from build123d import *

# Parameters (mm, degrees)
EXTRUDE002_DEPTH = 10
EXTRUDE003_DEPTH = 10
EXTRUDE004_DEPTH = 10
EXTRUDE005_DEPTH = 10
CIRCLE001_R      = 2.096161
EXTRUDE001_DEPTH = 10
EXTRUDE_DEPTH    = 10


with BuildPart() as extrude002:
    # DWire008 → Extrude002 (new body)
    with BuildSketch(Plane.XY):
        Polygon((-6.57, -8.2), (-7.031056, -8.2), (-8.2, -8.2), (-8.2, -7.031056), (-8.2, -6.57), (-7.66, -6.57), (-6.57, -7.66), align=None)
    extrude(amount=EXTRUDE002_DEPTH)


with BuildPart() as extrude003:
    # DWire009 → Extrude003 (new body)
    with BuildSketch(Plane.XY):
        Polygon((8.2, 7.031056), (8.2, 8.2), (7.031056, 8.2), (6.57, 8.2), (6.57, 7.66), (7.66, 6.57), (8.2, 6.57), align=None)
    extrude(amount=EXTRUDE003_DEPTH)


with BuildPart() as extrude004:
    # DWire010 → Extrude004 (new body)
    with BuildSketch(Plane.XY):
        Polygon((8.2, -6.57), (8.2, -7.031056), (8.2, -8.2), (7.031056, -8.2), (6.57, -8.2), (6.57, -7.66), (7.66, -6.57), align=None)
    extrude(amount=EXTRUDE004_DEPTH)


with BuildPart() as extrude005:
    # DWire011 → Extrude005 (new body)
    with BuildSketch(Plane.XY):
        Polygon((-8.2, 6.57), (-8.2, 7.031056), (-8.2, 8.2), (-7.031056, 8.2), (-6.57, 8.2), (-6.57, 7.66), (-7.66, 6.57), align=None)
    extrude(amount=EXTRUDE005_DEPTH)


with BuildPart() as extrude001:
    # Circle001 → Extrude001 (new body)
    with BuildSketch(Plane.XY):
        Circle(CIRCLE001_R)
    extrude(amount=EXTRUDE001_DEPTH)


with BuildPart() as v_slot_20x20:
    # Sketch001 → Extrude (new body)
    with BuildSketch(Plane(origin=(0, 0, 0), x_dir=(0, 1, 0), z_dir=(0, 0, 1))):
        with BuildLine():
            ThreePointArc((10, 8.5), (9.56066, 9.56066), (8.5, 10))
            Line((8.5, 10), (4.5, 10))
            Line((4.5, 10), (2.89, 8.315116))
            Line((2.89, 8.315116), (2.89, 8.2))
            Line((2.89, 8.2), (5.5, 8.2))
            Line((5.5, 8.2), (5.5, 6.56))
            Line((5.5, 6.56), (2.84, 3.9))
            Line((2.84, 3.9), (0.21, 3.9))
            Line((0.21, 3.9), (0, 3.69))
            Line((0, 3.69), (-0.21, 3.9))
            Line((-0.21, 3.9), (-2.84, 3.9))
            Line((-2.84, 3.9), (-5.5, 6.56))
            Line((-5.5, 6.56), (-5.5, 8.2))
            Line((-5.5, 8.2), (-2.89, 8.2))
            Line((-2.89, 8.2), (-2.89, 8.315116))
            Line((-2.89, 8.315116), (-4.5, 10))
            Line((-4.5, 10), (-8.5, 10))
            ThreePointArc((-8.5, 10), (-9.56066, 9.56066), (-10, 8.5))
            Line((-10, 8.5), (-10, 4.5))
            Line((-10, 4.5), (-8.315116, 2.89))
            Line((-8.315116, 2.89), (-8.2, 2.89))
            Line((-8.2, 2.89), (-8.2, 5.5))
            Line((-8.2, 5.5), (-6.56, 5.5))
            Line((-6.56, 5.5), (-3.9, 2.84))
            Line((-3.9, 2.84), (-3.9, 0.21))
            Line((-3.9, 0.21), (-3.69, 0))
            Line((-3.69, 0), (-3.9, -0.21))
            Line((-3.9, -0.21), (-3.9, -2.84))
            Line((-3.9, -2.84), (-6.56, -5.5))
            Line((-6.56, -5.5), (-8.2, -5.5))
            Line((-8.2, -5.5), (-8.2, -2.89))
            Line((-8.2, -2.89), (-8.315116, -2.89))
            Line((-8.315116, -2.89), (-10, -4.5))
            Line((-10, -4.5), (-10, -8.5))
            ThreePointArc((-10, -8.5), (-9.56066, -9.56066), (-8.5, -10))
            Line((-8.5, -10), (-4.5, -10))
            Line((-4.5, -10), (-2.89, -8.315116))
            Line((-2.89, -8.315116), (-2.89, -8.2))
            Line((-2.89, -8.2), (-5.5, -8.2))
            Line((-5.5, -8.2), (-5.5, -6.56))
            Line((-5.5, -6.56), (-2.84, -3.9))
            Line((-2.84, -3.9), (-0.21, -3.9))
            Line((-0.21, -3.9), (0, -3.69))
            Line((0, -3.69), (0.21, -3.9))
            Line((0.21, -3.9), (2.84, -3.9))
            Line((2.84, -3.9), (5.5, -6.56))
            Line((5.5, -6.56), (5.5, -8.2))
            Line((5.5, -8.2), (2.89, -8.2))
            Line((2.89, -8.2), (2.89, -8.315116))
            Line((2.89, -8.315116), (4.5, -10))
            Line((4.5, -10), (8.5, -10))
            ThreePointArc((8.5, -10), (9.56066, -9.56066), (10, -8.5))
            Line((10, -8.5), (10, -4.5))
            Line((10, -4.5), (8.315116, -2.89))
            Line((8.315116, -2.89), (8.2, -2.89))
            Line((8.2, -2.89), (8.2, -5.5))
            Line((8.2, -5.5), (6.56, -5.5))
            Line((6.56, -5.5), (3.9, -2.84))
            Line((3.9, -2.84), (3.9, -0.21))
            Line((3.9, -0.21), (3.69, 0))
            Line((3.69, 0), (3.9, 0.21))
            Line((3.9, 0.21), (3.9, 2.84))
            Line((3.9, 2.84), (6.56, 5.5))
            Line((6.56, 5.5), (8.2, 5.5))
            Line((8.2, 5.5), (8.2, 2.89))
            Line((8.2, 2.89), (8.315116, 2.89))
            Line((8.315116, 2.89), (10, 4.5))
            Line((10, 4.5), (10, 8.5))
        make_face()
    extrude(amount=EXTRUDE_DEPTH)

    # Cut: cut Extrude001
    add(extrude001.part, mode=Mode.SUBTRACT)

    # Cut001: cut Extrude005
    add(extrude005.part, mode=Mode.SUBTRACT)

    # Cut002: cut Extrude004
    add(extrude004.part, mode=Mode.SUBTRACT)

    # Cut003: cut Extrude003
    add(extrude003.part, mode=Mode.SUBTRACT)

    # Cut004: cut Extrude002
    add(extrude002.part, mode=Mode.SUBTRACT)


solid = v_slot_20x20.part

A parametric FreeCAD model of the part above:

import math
import FreeCAD as App
import Part
import Sketcher

V = App.Vector
Q = App.Units.Quantity

doc = App.newDocument("Part")
params = doc.addObject("Spreadsheet::Sheet", "Params")
for row, (alias, value) in enumerate([
    ("sketch1_width", "1.63 mm"),
    ("sketch1_width2", "0.54 mm"),
    ("pad1_length", "10 mm"),
    ("sketch2_width", "1.63 mm"),
    ("sketch2_width2", "0.54 mm"),
    ("pad2_length", "10 mm"),
    ("sketch3_width", "0.54 mm"),
    ("sketch3_width2", "1.63 mm"),
    ("pad3_length", "10 mm"),
    ("sketch4_width", "0.54 mm"),
    ("sketch4_width2", "1.63 mm"),
    ("pad4_length", "10 mm"),
    ("pad5_length", "10 mm"),
    ("sketch6_radius", "1.500001 mm"),
    ("sketch6_width", "4 mm"),
    ("sketch6_width2", "1.64 mm"),
    ("sketch6_width3", "2.61 mm"),
    ("sketch6_width4", "2.63 mm"),
    ("pad6_length", "10 mm"),
], start=1):
    params.set(f"A{row}", alias)
    params.set(f"B{row}", "=" + value)
    params.setAlias(f"B{row}", alias)

body = doc.addObject("PartDesign::Body", "Body")

sketch1 = body.newObject("Sketcher::SketchObject", "Sketch")
sketch1.AttachmentSupport = (doc.getObject("XY_Plane"), [""])
sketch1.MapMode = "FlatFace"
sketch1.addGeometry(Part.LineSegment(V(-8.2, -8.2, 0), V(-6.6, -8.2, 0)), False)
sketch1.addGeometry(Part.LineSegment(V(-6.6, -8.2, 0), V(-6.6, -7.7, 0)), False)
sketch1.addGeometry(Part.LineSegment(V(-6.6, -7.7, 0), V(-7.7, -6.6, 0)), False)
sketch1.addGeometry(Part.LineSegment(V(-7.7, -6.6, 0), V(-8.2, -6.6, 0)), False)
sketch1.addGeometry(Part.LineSegment(V(-8.2, -6.6, 0), V(-8.2, -8.2, 0)), False)
sketch1.addConstraint(Sketcher.Constraint("Coincident", 0, 2, 1, 1))
sketch1.addConstraint(Sketcher.Constraint("Coincident", 1, 2, 2, 1))
sketch1.addConstraint(Sketcher.Constraint("Coincident", 2, 2, 3, 1))
sketch1.addConstraint(Sketcher.Constraint("Coincident", 3, 2, 4, 1))
sketch1.addConstraint(Sketcher.Constraint("Coincident", 4, 2, 0, 1))
sketch1.addConstraint(Sketcher.Constraint("Horizontal", 0))
sketch1.addConstraint(Sketcher.Constraint("Vertical", 1))
sketch1.addConstraint(Sketcher.Constraint("Horizontal", 3))
sketch1.addConstraint(Sketcher.Constraint("Vertical", 4))
sketch1.addConstraint(Sketcher.Constraint("Equal", 3, 1))
sketch1.addConstraint(Sketcher.Constraint("Equal", 0, 4))
sketch1.addConstraint(Sketcher.Constraint("DistanceX", 0, 1, 0, 2, Q("1.63 mm")))
sketch1.addConstraint(Sketcher.Constraint("DistanceX", 3, 2, 3, 1, Q("0.54 mm")))
sketch1.addConstraint(Sketcher.Constraint("DistanceY", 0, 2, -1, 1, Q("8.2 mm")))
sketch1.addConstraint(Sketcher.Constraint("DistanceX", 3, 2, -1, 1, Q("8.2 mm")))
sketch1.setExpression("Constraints[11]", "Params.sketch1_width")
sketch1.setExpression("Constraints[12]", "Params.sketch1_width2")
pad1 = body.newObject("PartDesign::Pad", "Pad")
pad1.Profile = sketch1
pad1.setExpression("Length", "Params.pad1_length")
body2 = doc.addObject("PartDesign::Body", "Body001")

sketch2 = body2.newObject("Sketcher::SketchObject", "Sketch001")
sketch2.AttachmentSupport = (doc.getObject("XY_Plane001"), [""])
sketch2.MapMode = "FlatFace"
sketch2.addGeometry(Part.LineSegment(V(8.2, 8.2, 0), V(6.6, 8.2, 0)), False)
sketch2.addGeometry(Part.LineSegment(V(6.6, 8.2, 0), V(6.6, 7.7, 0)), False)
sketch2.addGeometry(Part.LineSegment(V(6.6, 7.7, 0), V(7.7, 6.6, 0)), False)
sketch2.addGeometry(Part.LineSegment(V(7.7, 6.6, 0), V(8.2, 6.6, 0)), False)
sketch2.addGeometry(Part.LineSegment(V(8.2, 6.6, 0), V(8.2, 8.2, 0)), False)
sketch2.addConstraint(Sketcher.Constraint("Coincident", 0, 2, 1, 1))
sketch2.addConstraint(Sketcher.Constraint("Coincident", 1, 2, 2, 1))
sketch2.addConstraint(Sketcher.Constraint("Coincident", 2, 2, 3, 1))
sketch2.addConstraint(Sketcher.Constraint("Coincident", 3, 2, 4, 1))
sketch2.addConstraint(Sketcher.Constraint("Coincident", 4, 2, 0, 1))
sketch2.addConstraint(Sketcher.Constraint("Horizontal", 0))
sketch2.addConstraint(Sketcher.Constraint("Vertical", 1))
sketch2.addConstraint(Sketcher.Constraint("Horizontal", 3))
sketch2.addConstraint(Sketcher.Constraint("Vertical", 4))
sketch2.addConstraint(Sketcher.Constraint("Equal", 3, 1))
sketch2.addConstraint(Sketcher.Constraint("Equal", 0, 4))
sketch2.addConstraint(Sketcher.Constraint("DistanceX", 0, 2, 0, 1, Q("1.63 mm")))
sketch2.addConstraint(Sketcher.Constraint("DistanceX", 3, 1, 3, 2, Q("0.54 mm")))
sketch2.addConstraint(Sketcher.Constraint("DistanceY", -1, 1, 0, 2, Q("8.2 mm")))
sketch2.addConstraint(Sketcher.Constraint("DistanceX", -1, 1, 3, 2, Q("8.2 mm")))
sketch2.setExpression("Constraints[11]", "Params.sketch2_width")
sketch2.setExpression("Constraints[12]", "Params.sketch2_width2")
pad2 = body2.newObject("PartDesign::Pad", "Pad001")
pad2.Profile = sketch2
pad2.setExpression("Length", "Params.pad2_length")
body3 = doc.addObject("PartDesign::Body", "Body002")

sketch3 = body3.newObject("Sketcher::SketchObject", "Sketch002")
sketch3.AttachmentSupport = (doc.getObject("XY_Plane002"), [""])
sketch3.MapMode = "FlatFace"
sketch3.addGeometry(Part.LineSegment(V(8.2, -8.2, 0), V(8.2, -6.6, 0)), False)
sketch3.addGeometry(Part.LineSegment(V(8.2, -6.6, 0), V(7.7, -6.6, 0)), False)
sketch3.addGeometry(Part.LineSegment(V(7.7, -6.6, 0), V(6.6, -7.7, 0)), False)
sketch3.addGeometry(Part.LineSegment(V(6.6, -7.7, 0), V(6.6, -8.2, 0)), False)
sketch3.addGeometry(Part.LineSegment(V(6.6, -8.2, 0), V(8.2, -8.2, 0)), False)
sketch3.addConstraint(Sketcher.Constraint("Coincident", 0, 2, 1, 1))
sketch3.addConstraint(Sketcher.Constraint("Coincident", 1, 2, 2, 1))
sketch3.addConstraint(Sketcher.Constraint("Coincident", 2, 2, 3, 1))
sketch3.addConstraint(Sketcher.Constraint("Coincident", 3, 2, 4, 1))
sketch3.addConstraint(Sketcher.Constraint("Coincident", 4, 2, 0, 1))
sketch3.addConstraint(Sketcher.Constraint("Vertical", 0))
sketch3.addConstraint(Sketcher.Constraint("Horizontal", 1))
sketch3.addConstraint(Sketcher.Constraint("Vertical", 3))
sketch3.addConstraint(Sketcher.Constraint("Horizontal", 4))
sketch3.addConstraint(Sketcher.Constraint("Equal", 4, 0))
sketch3.addConstraint(Sketcher.Constraint("Equal", 1, 3))
sketch3.addConstraint(Sketcher.Constraint("DistanceX", 1, 2, 1, 1, Q("0.54 mm")))
sketch3.addConstraint(Sketcher.Constraint("DistanceX", 4, 1, 4, 2, Q("1.63 mm")))
sketch3.addConstraint(Sketcher.Constraint("DistanceX", -1, 1, 0, 2, Q("8.2 mm")))
sketch3.addConstraint(Sketcher.Constraint("DistanceY", 3, 2, -1, 1, Q("8.2 mm")))
sketch3.setExpression("Constraints[11]", "Params.sketch3_width")
sketch3.setExpression("Constraints[12]", "Params.sketch3_width2")
pad3 = body3.newObject("PartDesign::Pad", "Pad002")
pad3.Profile = sketch3
pad3.setExpression("Length", "Params.pad3_length")
body4 = doc.addObject("PartDesign::Body", "Body003")

sketch4 = body4.newObject("Sketcher::SketchObject", "Sketch003")
sketch4.AttachmentSupport = (doc.getObject("XY_Plane003"), [""])
sketch4.MapMode = "FlatFace"
sketch4.addGeometry(Part.LineSegment(V(-8.2, 8.2, 0), V(-8.2, 6.6, 0)), False)
sketch4.addGeometry(Part.LineSegment(V(-8.2, 6.6, 0), V(-7.7, 6.6, 0)), False)
sketch4.addGeometry(Part.LineSegment(V(-7.7, 6.6, 0), V(-6.6, 7.7, 0)), False)
sketch4.addGeometry(Part.LineSegment(V(-6.6, 7.7, 0), V(-6.6, 8.2, 0)), False)
sketch4.addGeometry(Part.LineSegment(V(-6.6, 8.2, 0), V(-8.2, 8.2, 0)), False)
sketch4.addConstraint(Sketcher.Constraint("Coincident", 0, 2, 1, 1))
sketch4.addConstraint(Sketcher.Constraint("Coincident", 1, 2, 2, 1))
sketch4.addConstraint(Sketcher.Constraint("Coincident", 2, 2, 3, 1))
sketch4.addConstraint(Sketcher.Constraint("Coincident", 3, 2, 4, 1))
sketch4.addConstraint(Sketcher.Constraint("Coincident", 4, 2, 0, 1))
sketch4.addConstraint(Sketcher.Constraint("Vertical", 0))
sketch4.addConstraint(Sketcher.Constraint("Horizontal", 1))
sketch4.addConstraint(Sketcher.Constraint("Vertical", 3))
sketch4.addConstraint(Sketcher.Constraint("Horizontal", 4))
sketch4.addConstraint(Sketcher.Constraint("Equal", 4, 0))
sketch4.addConstraint(Sketcher.Constraint("Equal", 1, 3))
sketch4.addConstraint(Sketcher.Constraint("DistanceX", 1, 1, 1, 2, Q("0.54 mm")))
sketch4.addConstraint(Sketcher.Constraint("DistanceX", 4, 2, 4, 1, Q("1.63 mm")))
sketch4.addConstraint(Sketcher.Constraint("DistanceX", 0, 2, -1, 1, Q("8.2 mm")))
sketch4.addConstraint(Sketcher.Constraint("DistanceY", -1, 1, 3, 2, Q("8.2 mm")))
sketch4.setExpression("Constraints[11]", "Params.sketch4_width")
sketch4.setExpression("Constraints[12]", "Params.sketch4_width2")
pad4 = body4.newObject("PartDesign::Pad", "Pad003")
pad4.Profile = sketch4
pad4.setExpression("Length", "Params.pad4_length")
body5 = doc.addObject("PartDesign::Body", "Body004")

sketch5 = body5.newObject("Sketcher::SketchObject", "Sketch004")
sketch5.AttachmentSupport = (doc.getObject("XY_Plane004"), [""])
sketch5.MapMode = "FlatFace"
sketch5.addGeometry(Part.Circle(V(0, 0, 0), V(0, 0, 1), 2.1), False)
sketch5.addConstraint(Sketcher.Constraint("Coincident", 0, 3, -1, 1))
sketch5.addConstraint(Sketcher.Constraint("Diameter", 0, Q("4.192322 mm")))
pad5 = body5.newObject("PartDesign::Pad", "Pad004")
pad5.Profile = sketch5
pad5.setExpression("Length", "Params.pad5_length")
body6 = doc.addObject("PartDesign::Body", "Body005")

sketch6 = body6.newObject("Sketcher::SketchObject", "Sketch005")
sketch6.AttachmentSupport = (doc.getObject("XY_Plane005"), [""])
sketch6.MapMode = "FlatFace"
sketch6.addGeometry(Part.ArcOfCircle(Part.Circle(V(-8.5, 8.5, 0), V(0, 0, 1), 1.5), math.radians(90), math.radians(180)), False)
sketch6.addGeometry(Part.LineSegment(V(-10, 8.5, 0), V(-10, 4.5, 0)), False)
sketch6.addGeometry(Part.LineSegment(V(-10, 4.5, 0), V(-8.32, 2.89, 0)), False)
sketch6.addGeometry(Part.LineSegment(V(-8.32, 2.89, 0), V(-8.2, 2.89, 0)), False)
sketch6.addGeometry(Part.LineSegment(V(-8.2, 2.89, 0), V(-8.2, 5.5, 0)), False)
sketch6.addGeometry(Part.LineSegment(V(-8.2, 5.5, 0), V(-6.56, 5.5, 0)), False)
sketch6.addGeometry(Part.LineSegment(V(-6.56, 5.5, 0), V(-3.9, 2.84, 0)), False)
sketch6.addGeometry(Part.LineSegment(V(-3.9, 2.84, 0), V(-3.9, 0.21, 0)), False)
sketch6.addGeometry(Part.LineSegment(V(-3.9, 0.21, 0), V(-3.69, 0, 0)), False)
sketch6.addGeometry(Part.LineSegment(V(-3.69, 0, 0), V(-3.9, -0.21, 0)), False)
sketch6.addGeometry(Part.LineSegment(V(-3.9, -0.21, 0), V(-3.9, -2.84, 0)), False)
sketch6.addGeometry(Part.LineSegment(V(-3.9, -2.84, 0), V(-6.56, -5.5, 0)), False)
sketch6.addGeometry(Part.LineSegment(V(-6.56, -5.5, 0), V(-8.2, -5.5, 0)), False)
sketch6.addGeometry(Part.LineSegment(V(-8.2, -5.5, 0), V(-8.2, -2.89, 0)), False)
sketch6.addGeometry(Part.LineSegment(V(-8.2, -2.89, 0), V(-8.32, -2.89, 0)), False)
sketch6.addGeometry(Part.LineSegment(V(-8.32, -2.89, 0), V(-10, -4.5, 0)), False)
sketch6.addGeometry(Part.LineSegment(V(-10, -4.5, 0), V(-10, -8.5, 0)), False)
sketch6.addGeometry(Part.ArcOfCircle(Part.Circle(V(-8.5, -8.5, 0), V(0, 0, 1), 1.5), math.radians(-180), math.radians(-90)), False)
sketch6.addGeometry(Part.LineSegment(V(-8.5, -10, 0), V(-4.5, -10, 0)), False)
sketch6.addGeometry(Part.LineSegment(V(-4.5, -10, 0), V(-2.89, -8.32, 0)), False)
sketch6.addGeometry(Part.LineSegment(V(-2.89, -8.32, 0), V(-2.89, -8.2, 0)), False)
sketch6.addGeometry(Part.LineSegment(V(-2.89, -8.2, 0), V(-5.5, -8.2, 0)), False)
sketch6.addGeometry(Part.LineSegment(V(-5.5, -8.2, 0), V(-5.5, -6.56, 0)), False)
sketch6.addGeometry(Part.LineSegment(V(-5.5, -6.56, 0), V(-2.84, -3.9, 0)), False)
sketch6.addGeometry(Part.LineSegment(V(-2.84, -3.9, 0), V(-0.21, -3.9, 0)), False)
sketch6.addGeometry(Part.LineSegment(V(-0.21, -3.9, 0), V(0, -3.69, 0)), False)
sketch6.addGeometry(Part.LineSegment(V(0, -3.69, 0), V(0.21, -3.9, 0)), False)
sketch6.addGeometry(Part.LineSegment(V(0.21, -3.9, 0), V(2.84, -3.9, 0)), False)
sketch6.addGeometry(Part.LineSegment(V(2.84, -3.9, 0), V(5.5, -6.56, 0)), False)
sketch6.addGeometry(Part.LineSegment(V(5.5, -6.56, 0), V(5.5, -8.2, 0)), False)
sketch6.addGeometry(Part.LineSegment(V(5.5, -8.2, 0), V(2.89, -8.2, 0)), False)
sketch6.addGeometry(Part.LineSegment(V(2.89, -8.2, 0), V(2.89, -8.32, 0)), False)
sketch6.addGeometry(Part.LineSegment(V(2.89, -8.32, 0), V(4.5, -10, 0)), False)
sketch6.addGeometry(Part.LineSegment(V(4.5, -10, 0), V(8.5, -10, 0)), False)
sketch6.addGeometry(Part.ArcOfCircle(Part.Circle(V(8.5, -8.5, 0), V(0, 0, 1), 1.5), math.radians(-90), math.radians(0)), False)
sketch6.addGeometry(Part.LineSegment(V(10, -8.5, 0), V(10, -4.5, 0)), False)
sketch6.addGeometry(Part.LineSegment(V(10, -4.5, 0), V(8.32, -2.89, 0)), False)
sketch6.addGeometry(Part.LineSegment(V(8.32, -2.89, 0), V(8.2, -2.89, 0)), False)
sketch6.addGeometry(Part.LineSegment(V(8.2, -2.89, 0), V(8.2, -5.5, 0)), False)
sketch6.addGeometry(Part.LineSegment(V(8.2, -5.5, 0), V(6.56, -5.5, 0)), False)
sketch6.addGeometry(Part.LineSegment(V(6.56, -5.5, 0), V(3.9, -2.84, 0)), False)
sketch6.addGeometry(Part.LineSegment(V(3.9, -2.84, 0), V(3.9, -0.21, 0)), False)
sketch6.addGeometry(Part.LineSegment(V(3.9, -0.21, 0), V(3.69, 0, 0)), False)
sketch6.addGeometry(Part.LineSegment(V(3.69, 0, 0), V(3.9, 0.21, 0)), False)
sketch6.addGeometry(Part.LineSegment(V(3.9, 0.21, 0), V(3.9, 2.84, 0)), False)
sketch6.addGeometry(Part.LineSegment(V(3.9, 2.84, 0), V(6.56, 5.5, 0)), False)
sketch6.addGeometry(Part.LineSegment(V(6.56, 5.5, 0), V(8.2, 5.5, 0)), False)
sketch6.addGeometry(Part.LineSegment(V(8.2, 5.5, 0), V(8.2, 2.89, 0)), False)
sketch6.addGeometry(Part.LineSegment(V(8.2, 2.89, 0), V(8.32, 2.89, 0)), False)
sketch6.addGeometry(Part.LineSegment(V(8.32, 2.89, 0), V(10, 4.5, 0)), False)
sketch6.addGeometry(Part.LineSegment(V(10, 4.5, 0), V(10, 8.5, 0)), False)
sketch6.addGeometry(Part.ArcOfCircle(Part.Circle(V(8.5, 8.5, 0), V(0, 0, 1), 1.5), math.radians(0), math.radians(90)), False)
sketch6.addGeometry(Part.LineSegment(V(8.5, 10, 0), V(4.5, 10, 0)), False)
sketch6.addGeometry(Part.LineSegment(V(4.5, 10, 0), V(2.89, 8.32, 0)), False)
sketch6.addGeometry(Part.LineSegment(V(2.89, 8.32, 0), V(2.89, 8.2, 0)), False)
sketch6.addGeometry(Part.LineSegment(V(2.89, 8.2, 0), V(5.5, 8.2, 0)), False)
sketch6.addGeometry(Part.LineSegment(V(5.5, 8.2, 0), V(5.5, 6.56, 0)), False)
sketch6.addGeometry(Part.LineSegment(V(5.5, 6.56, 0), V(2.84, 3.9, 0)), False)
sketch6.addGeometry(Part.LineSegment(V(2.84, 3.9, 0), V(0.21, 3.9, 0)), False)
sketch6.addGeometry(Part.LineSegment(V(0.21, 3.9, 0), V(0, 3.69, 0)), False)
sketch6.addGeometry(Part.LineSegment(V(0, 3.69, 0), V(-0.21, 3.9, 0)), False)
sketch6.addGeometry(Part.LineSegment(V(-0.21, 3.9, 0), V(-2.84, 3.9, 0)), False)
sketch6.addGeometry(Part.LineSegment(V(-2.84, 3.9, 0), V(-5.5, 6.56, 0)), False)
sketch6.addGeometry(Part.LineSegment(V(-5.5, 6.56, 0), V(-5.5, 8.2, 0)), False)
sketch6.addGeometry(Part.LineSegment(V(-5.5, 8.2, 0), V(-2.89, 8.2, 0)), False)
sketch6.addGeometry(Part.LineSegment(V(-2.89, 8.2, 0), V(-2.89, 8.32, 0)), False)
sketch6.addGeometry(Part.LineSegment(V(-2.89, 8.32, 0), V(-4.5, 10, 0)), False)
sketch6.addGeometry(Part.LineSegment(V(-4.5, 10, 0), V(-8.5, 10, 0)), False)
sketch6.addConstraint(Sketcher.Constraint("Tangent", 0, 2, 1, 1))
sketch6.addConstraint(Sketcher.Constraint("Coincident", 1, 2, 2, 1))
sketch6.addConstraint(Sketcher.Constraint("Coincident", 2, 2, 3, 1))
sketch6.addConstraint(Sketcher.Constraint("Coincident", 3, 2, 4, 1))
sketch6.addConstraint(Sketcher.Constraint("Coincident", 4, 2, 5, 1))
sketch6.addConstraint(Sketcher.Constraint("Coincident", 5, 2, 6, 1))
sketch6.addConstraint(Sketcher.Constraint("Coincident", 6, 2, 7, 1))
sketch6.addConstraint(Sketcher.Constraint("Coincident", 7, 2, 8, 1))
sketch6.addConstraint(Sketcher.Constraint("Coincident", 8, 2, 9, 1))
sketch6.addConstraint(Sketcher.Constraint("Coincident", 9, 2, 10, 1))
sketch6.addConstraint(Sketcher.Constraint("Coincident", 10, 2, 11, 1))
sketch6.addConstraint(Sketcher.Constraint("Coincident", 11, 2, 12, 1))
sketch6.addConstraint(Sketcher.Constraint("Coincident", 12, 2, 13, 1))
sketch6.addConstraint(Sketcher.Constraint("Coincident", 13, 2, 14, 1))
sketch6.addConstraint(Sketcher.Constraint("Coincident", 14, 2, 15, 1))
sketch6.addConstraint(Sketcher.Constraint("Coincident", 15, 2, 16, 1))
sketch6.addConstraint(Sketcher.Constraint("Tangent", 16, 2, 17, 1))
sketch6.addConstraint(Sketcher.Constraint("Tangent", 17, 2, 18, 1))
sketch6.addConstraint(Sketcher.Constraint("Coincident", 18, 2, 19, 1))
sketch6.addConstraint(Sketcher.Constraint("Coincident", 19, 2, 20, 1))
sketch6.addConstraint(Sketcher.Constraint("Coincident", 20, 2, 21, 1))
sketch6.addConstraint(Sketcher.Constraint("Coincident", 21, 2, 22, 1))
sketch6.addConstraint(Sketcher.Constraint("Coincident", 22, 2, 23, 1))
sketch6.addConstraint(Sketcher.Constraint("Coincident", 23, 2, 24, 1))
sketch6.addConstraint(Sketcher.Constraint("Coincident", 24, 2, 25, 1))
sketch6.addConstraint(Sketcher.Constraint("Coincident", 25, 2, 26, 1))
sketch6.addConstraint(Sketcher.Constraint("Coincident", 26, 2, 27, 1))
sketch6.addConstraint(Sketcher.Constraint("Coincident", 27, 2, 28, 1))
sketch6.addConstraint(Sketcher.Constraint("Coincident", 28, 2, 29, 1))
sketch6.addConstraint(Sketcher.Constraint("Coincident", 29, 2, 30, 1))
sketch6.addConstraint(Sketcher.Constraint("Coincident", 30, 2, 31, 1))
sketch6.addConstraint(Sketcher.Constraint("Coincident", 31, 2, 32, 1))
sketch6.addConstraint(Sketcher.Constraint("Coincident", 32, 2, 33, 1))
sketch6.addConstraint(Sketcher.Constraint("Tangent", 33, 2, 34, 1))
sketch6.addConstraint(Sketcher.Constraint("Tangent", 34, 2, 35, 1))
sketch6.addConstraint(Sketcher.Constraint("Coincident", 35, 2, 36, 1))
sketch6.addConstraint(Sketcher.Constraint("Coincident", 36, 2, 37, 1))
sketch6.addConstraint(Sketcher.Constraint("Coincident", 37, 2, 38, 1))
sketch6.addConstraint(Sketcher.Constraint("Coincident", 38, 2, 39, 1))
sketch6.addConstraint(Sketcher.Constraint("Coincident", 39, 2, 40, 1))
sketch6.addConstraint(Sketcher.Constraint("Coincident", 40, 2, 41, 1))
sketch6.addConstraint(Sketcher.Constraint("Coincident", 41, 2, 42, 1))
sketch6.addConstraint(Sketcher.Constraint("Coincident", 42, 2, 43, 1))
sketch6.addConstraint(Sketcher.Constraint("Coincident", 43, 2, 44, 1))
sketch6.addConstraint(Sketcher.Constraint("Coincident", 44, 2, 45, 1))
sketch6.addConstraint(Sketcher.Constraint("Coincident", 45, 2, 46, 1))
sketch6.addConstraint(Sketcher.Constraint("Coincident", 46, 2, 47, 1))
sketch6.addConstraint(Sketcher.Constraint("Coincident", 47, 2, 48, 1))
sketch6.addConstraint(Sketcher.Constraint("Coincident", 48, 2, 49, 1))
sketch6.addConstraint(Sketcher.Constraint("Coincident", 49, 2, 50, 1))
sketch6.addConstraint(Sketcher.Constraint("Tangent", 50, 2, 51, 1))
sketch6.addConstraint(Sketcher.Constraint("Tangent", 51, 2, 52, 1))
sketch6.addConstraint(Sketcher.Constraint("Coincident", 52, 2, 53, 1))
sketch6.addConstraint(Sketcher.Constraint("Coincident", 53, 2, 54, 1))
sketch6.addConstraint(Sketcher.Constraint("Coincident", 54, 2, 55, 1))
sketch6.addConstraint(Sketcher.Constraint("Coincident", 55, 2, 56, 1))
sketch6.addConstraint(Sketcher.Constraint("Coincident", 56, 2, 57, 1))
sketch6.addConstraint(Sketcher.Constraint("Coincident", 57, 2, 58, 1))
sketch6.addConstraint(Sketcher.Constraint("Coincident", 58, 2, 59, 1))
sketch6.addConstraint(Sketcher.Constraint("Coincident", 59, 2, 60, 1))
sketch6.addConstraint(Sketcher.Constraint("Coincident", 60, 2, 61, 1))
sketch6.addConstraint(Sketcher.Constraint("Coincident", 61, 2, 62, 1))
sketch6.addConstraint(Sketcher.Constraint("Coincident", 62, 2, 63, 1))
sketch6.addConstraint(Sketcher.Constraint("Coincident", 63, 2, 64, 1))
sketch6.addConstraint(Sketcher.Constraint("Coincident", 64, 2, 65, 1))
sketch6.addConstraint(Sketcher.Constraint("Coincident", 65, 2, 66, 1))
sketch6.addConstraint(Sketcher.Constraint("Coincident", 66, 2, 67, 1))
sketch6.addConstraint(Sketcher.Constraint("Tangent", 67, 2, 0, 1))
sketch6.addConstraint(Sketcher.Constraint("Vertical", 1))
sketch6.addConstraint(Sketcher.Constraint("Horizontal", 3))
sketch6.addConstraint(Sketcher.Constraint("Vertical", 4))
sketch6.addConstraint(Sketcher.Constraint("Horizontal", 5))
sketch6.addConstraint(Sketcher.Constraint("Vertical", 7))
sketch6.addConstraint(Sketcher.Constraint("Vertical", 10))
sketch6.addConstraint(Sketcher.Constraint("Horizontal", 12))
sketch6.addConstraint(Sketcher.Constraint("Vertical", 13))
sketch6.addConstraint(Sketcher.Constraint("Horizontal", 14))
sketch6.addConstraint(Sketcher.Constraint("Vertical", 16))
sketch6.addConstraint(Sketcher.Constraint("Horizontal", 18))
sketch6.addConstraint(Sketcher.Constraint("Vertical", 20))
sketch6.addConstraint(Sketcher.Constraint("Horizontal", 21))
sketch6.addConstraint(Sketcher.Constraint("Vertical", 22))
sketch6.addConstraint(Sketcher.Constraint("Horizontal", 24))
sketch6.addConstraint(Sketcher.Constraint("Horizontal", 27))
sketch6.addConstraint(Sketcher.Constraint("Vertical", 29))
sketch6.addConstraint(Sketcher.Constraint("Horizontal", 30))
sketch6.addConstraint(Sketcher.Constraint("Vertical", 31))
sketch6.addConstraint(Sketcher.Constraint("Horizontal", 33))
sketch6.addConstraint(Sketcher.Constraint("Vertical", 35))
sketch6.addConstraint(Sketcher.Constraint("Horizontal", 37))
sketch6.addConstraint(Sketcher.Constraint("Vertical", 38))
sketch6.addConstraint(Sketcher.Constraint("Horizontal", 39))
sketch6.addConstraint(Sketcher.Constraint("Vertical", 41))
sketch6.addConstraint(Sketcher.Constraint("Vertical", 44))
sketch6.addConstraint(Sketcher.Constraint("Horizontal", 46))
sketch6.addConstraint(Sketcher.Constraint("Vertical", 47))
sketch6.addConstraint(Sketcher.Constraint("Horizontal", 48))
sketch6.addConstraint(Sketcher.Constraint("Vertical", 50))
sketch6.addConstraint(Sketcher.Constraint("Horizontal", 52))
sketch6.addConstraint(Sketcher.Constraint("Vertical", 54))
sketch6.addConstraint(Sketcher.Constraint("Horizontal", 55))
sketch6.addConstraint(Sketcher.Constraint("Vertical", 56))
sketch6.addConstraint(Sketcher.Constraint("Horizontal", 58))
sketch6.addConstraint(Sketcher.Constraint("Horizontal", 61))
sketch6.addConstraint(Sketcher.Constraint("Vertical", 63))
sketch6.addConstraint(Sketcher.Constraint("Horizontal", 64))
sketch6.addConstraint(Sketcher.Constraint("Vertical", 65))
sketch6.addConstraint(Sketcher.Constraint("Horizontal", 67))
sketch6.addConstraint(Sketcher.Constraint("Equal", 0, 17))
sketch6.addConstraint(Sketcher.Constraint("Equal", 17, 34))
sketch6.addConstraint(Sketcher.Constraint("Equal", 34, 51))
sketch6.addConstraint(Sketcher.Constraint("Symmetric", 0, 3, 34, 3, -1, 1))
sketch6.addConstraint(Sketcher.Constraint("Symmetric", 17, 3, 51, 3, -1, 1))
sketch6.addConstraint(Sketcher.Constraint("Symmetric", 2, 2, 36, 2, -1, 1))
sketch6.addConstraint(Sketcher.Constraint("Symmetric", 4, 2, 38, 2, -1, 1))
sketch6.addConstraint(Sketcher.Constraint("Symmetric", 6, 2, 40, 2, -1, 1))
sketch6.addConstraint(Sketcher.Constraint("Symmetric", 8, 2, 42, 2, -1, 1))
sketch6.addConstraint(Sketcher.Constraint("Symmetric", 9, 2, 43, 2, -1, 1))
sketch6.addConstraint(Sketcher.Constraint("Symmetric", 11, 2, 45, 2, -1, 1))
sketch6.addConstraint(Sketcher.Constraint("Symmetric", 13, 2, 47, 2, -1, 1))
sketch6.addConstraint(Sketcher.Constraint("Symmetric", 19, 2, 53, 2, -1, 1))
sketch6.addConstraint(Sketcher.Constraint("Symmetric", 21, 2, 55, 2, -1, 1))
sketch6.addConstraint(Sketcher.Constraint("Symmetric", 23, 2, 57, 2, -1, 1))
sketch6.addConstraint(Sketcher.Constraint("Symmetric", 25, 2, 59, 2, -1, 1))
sketch6.addConstraint(Sketcher.Constraint("Symmetric", 26, 2, 60, 2, -1, 1))
sketch6.addConstraint(Sketcher.Constraint("Symmetric", 28, 2, 62, 2, -1, 1))
sketch6.addConstraint(Sketcher.Constraint("Symmetric", 30, 2, 64, 2, -1, 1))
sketch6.addConstraint(Sketcher.Constraint("Symmetric", 17, 3, 34, 3, -2))
sketch6.addConstraint(Sketcher.Constraint("Symmetric", 24, 2, 26, 2, -2))
sketch6.addConstraint(Sketcher.Constraint("Symmetric", 22, 2, 28, 2, -2))
sketch6.addConstraint(Sketcher.Constraint("Symmetric", 20, 2, 30, 2, -2))
sketch6.addConstraint(Sketcher.Constraint("Symmetric", 14, 2, 36, 2, -2))
sketch6.addConstraint(Sketcher.Constraint("Symmetric", 12, 2, 38, 2, -2))
sketch6.addConstraint(Sketcher.Constraint("Symmetric", 10, 2, 40, 2, -2))
sketch6.addConstraint(Sketcher.Constraint("PointOnObject", 8, 2, -1))
sketch6.addConstraint(Sketcher.Constraint("PointOnObject", 25, 2, -2))
sketch6.addConstraint(Sketcher.Constraint("Parallel", 6, 8))
sketch6.addConstraint(Sketcher.Constraint("Perpendicular", 8, 9))
sketch6.addConstraint(Sketcher.Constraint("Parallel", 9, 11))
sketch6.addConstraint(Sketcher.Constraint("Perpendicular", 2, 19))
sketch6.addConstraint(Sketcher.Constraint("Parallel", 11, 23))
sketch6.addConstraint(Sketcher.Constraint("Parallel", 23, 25))
sketch6.addConstraint(Sketcher.Constraint("Perpendicular", 25, 26))
sketch6.addConstraint(Sketcher.Constraint("Parallel", 26, 28))
sketch6.addConstraint(Sketcher.Constraint("Perpendicular", 15, 32))
sketch6.addConstraint(Sketcher.Constraint("Perpendicular", 19, 36))
sketch6.addConstraint(Sketcher.Constraint("Parallel", 28, 40))
sketch6.addConstraint(Sketcher.Constraint("Parallel", 40, 42))
sketch6.addConstraint(Sketcher.Constraint("Parallel", 43, 45))
sketch6.addConstraint(Sketcher.Constraint("Perpendicular", 32, 49))
sketch6.addConstraint(Sketcher.Constraint("Perpendicular", 36, 53))
sketch6.addConstraint(Sketcher.Constraint("Parallel", 45, 57))
sketch6.addConstraint(Sketcher.Constraint("Parallel", 57, 59))
sketch6.addConstraint(Sketcher.Constraint("Parallel", 60, 62))
sketch6.addConstraint(Sketcher.Constraint("Perpendicular", 49, 66))
sketch6.addConstraint(Sketcher.Constraint("Horizontal", 19, 2, 31, 2))
sketch6.addConstraint(Sketcher.Constraint("Horizontal", 15, 2, 35, 2))
sketch6.addConstraint(Sketcher.Constraint("Horizontal", 1, 2, 49, 2))
sketch6.addConstraint(Sketcher.Constraint("Horizontal", 53, 2, 65, 2))
sketch6.addConstraint(Sketcher.Constraint("Equal", 67, 1))
sketch6.addConstraint(Sketcher.Constraint("Equal", 64, 4))
sketch6.addConstraint(Sketcher.Constraint("Equal", 61, 7))
sketch6.addConstraint(Sketcher.Constraint("Equal", 48, 20))
sketch6.addConstraint(Sketcher.Constraint("Equal", 46, 22))
sketch6.addConstraint(Sketcher.Constraint("Equal", 15, 19))
sketch6.addConstraint(Sketcher.Constraint("Equal", 11, 23))
sketch6.addConstraint(Sketcher.Constraint("Equal", 9, 25))
sketch6.addConstraint(Sketcher.Constraint("Radius", 0, Q("1.500001 mm")))
sketch6.addConstraint(Sketcher.Constraint("DistanceX", 18, 1, 18, 2, Q("4 mm")))
sketch6.addConstraint(Sketcher.Constraint("DistanceX", 0, 2, -1, 1, Q("10 mm")))
sketch6.addConstraint(Sketcher.Constraint("DistanceX", 5, 1, 5, 2, Q("1.64 mm")))
sketch6.addConstraint(Sketcher.Constraint("DistanceX", 21, 2, 21, 1, Q("2.61 mm")))
sketch6.addConstraint(Sketcher.Constraint("DistanceX", 24, 1, 24, 2, Q("2.63 mm")))
sketch6.addConstraint(Sketcher.Constraint("DistanceX", 3, 2, -1, 1, Q("8.2 mm")))
sketch6.addConstraint(Sketcher.Constraint("DistanceY", -1, 1, 4, 2, Q("5.5 mm")))
sketch6.addConstraint(Sketcher.Constraint("DistanceX", 6, 2, -1, 1, Q("3.9 mm")))
sketch6.addConstraint(Sketcher.Constraint("DistanceX", 3, 1, 3, 2, Q("0.115116 mm")))
sketch6.setExpression("Constraints[167]", "Params.sketch6_radius")
sketch6.setExpression("Constraints[168]", "Params.sketch6_width")
sketch6.setExpression("Constraints[170]", "Params.sketch6_width2")
sketch6.setExpression("Constraints[171]", "Params.sketch6_width3")
sketch6.setExpression("Constraints[172]", "Params.sketch6_width4")
pad6 = body6.newObject("PartDesign::Pad", "Pad005")
pad6.Profile = sketch6
pad6.setExpression("Length", "Params.pad6_length")
doc.recompute()

boolean = body6.newObject("PartDesign::Boolean", "Boolean")
boolean.Type = "Cut"
boolean.addObjects([body5])
doc.recompute()

boolean2 = body6.newObject("PartDesign::Boolean", "Boolean001")
boolean2.Type = "Cut"
boolean2.addObjects([body4])
doc.recompute()

boolean3 = body6.newObject("PartDesign::Boolean", "Boolean002")
boolean3.Type = "Cut"
boolean3.addObjects([body3])
doc.recompute()

boolean4 = body6.newObject("PartDesign::Boolean", "Boolean003")
boolean4.Type = "Cut"
boolean4.addObjects([body2])
doc.recompute()

boolean5 = body6.newObject("PartDesign::Boolean", "Boolean004")
boolean5.Type = "Cut"
boolean5.addObjects([body])

doc.recompute()
